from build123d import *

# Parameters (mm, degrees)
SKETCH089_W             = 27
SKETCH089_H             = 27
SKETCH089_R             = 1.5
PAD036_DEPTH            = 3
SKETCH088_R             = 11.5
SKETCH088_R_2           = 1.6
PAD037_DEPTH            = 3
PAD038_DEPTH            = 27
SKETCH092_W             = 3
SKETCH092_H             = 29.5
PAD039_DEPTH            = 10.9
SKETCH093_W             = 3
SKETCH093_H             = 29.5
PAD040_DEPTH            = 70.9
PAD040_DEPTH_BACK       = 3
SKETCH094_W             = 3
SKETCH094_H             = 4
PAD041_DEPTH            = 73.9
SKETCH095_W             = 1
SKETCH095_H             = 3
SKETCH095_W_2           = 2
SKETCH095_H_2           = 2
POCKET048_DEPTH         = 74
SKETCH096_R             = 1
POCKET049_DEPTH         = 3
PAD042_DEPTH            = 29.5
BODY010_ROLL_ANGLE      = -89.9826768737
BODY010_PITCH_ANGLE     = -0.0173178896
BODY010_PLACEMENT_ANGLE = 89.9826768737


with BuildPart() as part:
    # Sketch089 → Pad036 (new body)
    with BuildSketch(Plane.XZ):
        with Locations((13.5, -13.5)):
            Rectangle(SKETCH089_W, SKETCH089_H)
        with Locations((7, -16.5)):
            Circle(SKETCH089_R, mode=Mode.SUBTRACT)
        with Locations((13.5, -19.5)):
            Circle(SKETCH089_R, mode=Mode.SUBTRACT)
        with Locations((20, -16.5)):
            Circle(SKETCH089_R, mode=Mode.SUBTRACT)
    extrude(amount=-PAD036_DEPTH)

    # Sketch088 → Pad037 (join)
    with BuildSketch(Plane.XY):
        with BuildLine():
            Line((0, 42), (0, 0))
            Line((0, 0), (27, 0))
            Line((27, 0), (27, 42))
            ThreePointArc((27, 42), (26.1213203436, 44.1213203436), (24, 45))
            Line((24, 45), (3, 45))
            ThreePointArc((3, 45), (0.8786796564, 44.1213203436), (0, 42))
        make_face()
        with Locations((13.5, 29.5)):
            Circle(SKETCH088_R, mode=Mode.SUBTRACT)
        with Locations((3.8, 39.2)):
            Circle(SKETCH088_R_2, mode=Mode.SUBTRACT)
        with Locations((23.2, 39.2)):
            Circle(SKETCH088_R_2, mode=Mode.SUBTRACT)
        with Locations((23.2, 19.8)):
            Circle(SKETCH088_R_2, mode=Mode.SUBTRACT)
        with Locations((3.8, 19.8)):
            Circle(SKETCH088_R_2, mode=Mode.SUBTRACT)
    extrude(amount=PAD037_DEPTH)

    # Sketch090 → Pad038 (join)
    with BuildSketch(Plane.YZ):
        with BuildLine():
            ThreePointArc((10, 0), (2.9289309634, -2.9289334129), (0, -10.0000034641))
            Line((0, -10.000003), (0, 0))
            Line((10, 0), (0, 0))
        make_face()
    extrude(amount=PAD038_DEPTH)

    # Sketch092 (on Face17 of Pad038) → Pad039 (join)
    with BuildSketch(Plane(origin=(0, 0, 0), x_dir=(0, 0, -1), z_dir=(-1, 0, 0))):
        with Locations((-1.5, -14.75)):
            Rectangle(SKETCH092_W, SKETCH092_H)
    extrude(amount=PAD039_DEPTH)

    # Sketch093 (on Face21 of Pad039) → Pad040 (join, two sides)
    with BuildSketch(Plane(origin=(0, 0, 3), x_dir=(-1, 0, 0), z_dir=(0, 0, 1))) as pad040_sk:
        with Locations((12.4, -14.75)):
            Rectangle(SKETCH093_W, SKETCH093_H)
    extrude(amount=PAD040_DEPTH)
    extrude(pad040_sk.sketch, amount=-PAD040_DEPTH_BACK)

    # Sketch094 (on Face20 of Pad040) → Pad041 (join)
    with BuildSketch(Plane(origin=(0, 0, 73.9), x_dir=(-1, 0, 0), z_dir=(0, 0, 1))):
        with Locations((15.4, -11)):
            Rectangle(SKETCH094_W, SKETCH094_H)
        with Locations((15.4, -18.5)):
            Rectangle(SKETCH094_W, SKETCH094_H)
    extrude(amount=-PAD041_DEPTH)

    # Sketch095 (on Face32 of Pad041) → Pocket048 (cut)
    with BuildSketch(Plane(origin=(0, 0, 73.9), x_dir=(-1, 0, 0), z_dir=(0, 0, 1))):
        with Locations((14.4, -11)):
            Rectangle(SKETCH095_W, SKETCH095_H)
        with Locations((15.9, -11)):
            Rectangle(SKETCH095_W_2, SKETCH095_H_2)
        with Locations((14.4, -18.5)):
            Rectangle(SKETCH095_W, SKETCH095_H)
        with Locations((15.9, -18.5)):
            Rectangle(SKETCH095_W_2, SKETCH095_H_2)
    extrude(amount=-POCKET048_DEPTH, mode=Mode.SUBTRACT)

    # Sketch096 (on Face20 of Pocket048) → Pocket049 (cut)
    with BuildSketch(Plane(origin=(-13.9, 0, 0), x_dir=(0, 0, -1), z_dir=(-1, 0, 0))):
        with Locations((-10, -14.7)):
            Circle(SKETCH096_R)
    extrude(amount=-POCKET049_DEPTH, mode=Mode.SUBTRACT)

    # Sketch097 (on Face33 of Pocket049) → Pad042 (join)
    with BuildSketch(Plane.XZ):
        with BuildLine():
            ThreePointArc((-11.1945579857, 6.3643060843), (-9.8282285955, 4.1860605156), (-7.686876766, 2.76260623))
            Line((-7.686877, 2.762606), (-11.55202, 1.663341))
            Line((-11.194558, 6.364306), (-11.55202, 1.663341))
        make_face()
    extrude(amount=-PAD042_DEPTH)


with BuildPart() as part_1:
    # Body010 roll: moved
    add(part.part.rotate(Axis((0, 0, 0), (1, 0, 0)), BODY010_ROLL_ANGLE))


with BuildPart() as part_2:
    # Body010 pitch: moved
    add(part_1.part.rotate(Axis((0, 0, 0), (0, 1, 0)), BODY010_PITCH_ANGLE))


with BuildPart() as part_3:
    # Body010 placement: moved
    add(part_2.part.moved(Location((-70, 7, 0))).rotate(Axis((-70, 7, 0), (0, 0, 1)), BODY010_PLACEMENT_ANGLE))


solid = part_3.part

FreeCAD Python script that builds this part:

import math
import FreeCAD as App
import Part
import Sketcher

V = App.Vector
Q = App.Units.Quantity

doc = App.newDocument("Part")
params = doc.addObject("Spreadsheet::Sheet", "Params")
for row, (alias, value) in enumerate([
    ("sketch1_diameter", "3 mm"),
    ("sketch1_width", "27 mm"),
    ("pad1_length", "3 mm"),
    ("sketch2_diameter", "23 mm"),
    ("sketch2_radius", "3 mm"),
    ("sketch2_diameter2", "3.2 mm"),
    ("sketch2_width", "27 mm"),
    ("sketch2_height", "42 mm"),
    ("pad2_length", "3 mm"),
    ("sketch3_radius", "10 mm"),
    ("pad3_length", "27 mm"),
    ("sketch4_height", "3 mm"),
    ("sketch4_width", "29.5 mm"),
    ("pad4_length", "10.9 mm"),
    ("sketch5_width", "3 mm"),
    ("sketch5_height", "29.5 mm"),
    ("pad5_length", "70.9 mm"),
    ("pad5_length2", "3 mm"),
    ("sketch6_width", "3 mm"),
    ("sketch6_height", "4 mm"),
    ("pad6_length", "73.9 mm"),
    ("sketch7_width", "1 mm"),
    ("sketch7_width2", "2 mm"),
    ("sketch7_height", "3 mm"),
    ("pocket1_length", "74 mm"),
    ("sketch8_diameter", "2 mm"),
    ("pocket2_length", "3 mm"),
    ("pad7_length", "29.5 mm"),
], start=1):
    params.set(f"A{row}", alias)
    params.set(f"B{row}", "=" + value)
    params.setAlias(f"B{row}", alias)

body = doc.addObject("PartDesign::Body", "Body")

# Sketch on XZ plane
sketch1 = body.newObject("Sketcher::SketchObject", "Sketch")
sketch1.AttachmentSupport = (doc.getObject("XZ_Plane"), [""])
sketch1.MapMode = "FlatFace"
sketch1.addGeometry(Part.LineSegment(V(0, 0, 0), V(0, -27, 0)), False)
sketch1.addGeometry(Part.LineSegment(V(0, -27, 0), V(27, -27, 0)), False)
sketch1.addGeometry(Part.LineSegment(V(27, -27, 0), V(27, 0, 0)), False)
sketch1.addGeometry(Part.LineSegment(V(27, 0, 0), V(0, 0, 0)), False)
sketch1.addGeometry(Part.Circle(V(13.5, -19.5, 0), V(0, 0, 1), 1.5), False)
sketch1.addGeometry(Part.Circle(V(7, -16.5, 0), V(0, 0, 1), 1.5), False)
sketch1.addGeometry(Part.Circle(V(20, -16.5, 0), V(0, 0, 1), 1.5), False)
sketch1.addConstraint(Sketcher.Constraint("Coincident", 0, 2, 1, 1))
sketch1.addConstraint(Sketcher.Constraint("Coincident", 1, 2, 2, 1))
sketch1.addConstraint(Sketcher.Constraint("Coincident", 2, 2, 3, 1))
sketch1.addConstraint(Sketcher.Constraint("Coincident", 3, 2, 0, 1))
sketch1.addConstraint(Sketcher.Constraint("Vertical", 0))
sketch1.addConstraint(Sketcher.Constraint("Horizontal", 1))
sketch1.addConstraint(Sketcher.Constraint("Vertical", 2))
sketch1.addConstraint(Sketcher.Constraint("Horizontal", 3))
sketch1.addConstraint(Sketcher.Constraint("Coincident", 3, 2, -1, 1))
sketch1.addConstraint(Sketcher.Constraint("Equal", 4, 5))
sketch1.addConstraint(Sketcher.Constraint("Equal", 5, 6))
sketch1.addConstraint(Sketcher.Constraint("Horizontal", 5, 3, 6, 3))
sketch1.addConstraint(Sketcher.Constraint("Equal", 3, 0))
sketch1.addConstraint(Sketcher.Constraint("Diameter", 4, Q("3 mm")))
sketch1.addConstraint(Sketcher.Constraint("DistanceX", 1, 1, 1, 2, Q("27 mm")))
sketch1.addConstraint(Sketcher.Constraint("DistanceX", -1, 1, 5, 3, Q("7 mm")))
sketch1.addConstraint(Sketcher.Constraint("DistanceX", -1, 1, 6, 3, Q("20 mm")))
sketch1.addConstraint(Sketcher.Constraint("DistanceY", 4, 3, 5, 3, Q("3 mm")))
sketch1.addConstraint(Sketcher.Constraint("DistanceX", -1, 1, 4, 3, Q("13.5 mm")))
sketch1.addConstraint(Sketcher.Constraint("DistanceY", 4, 3, -1, 1, Q("19.5 mm")))
sketch1.setExpression("Constraints[13]", "Params.sketch1_diameter")
sketch1.setExpression("Constraints[14]", "Params.sketch1_width")
pad1 = body.newObject("PartDesign::Pad", "Pad")
pad1.Profile = sketch1
pad1.setExpression("Length", "Params.pad1_length")
pad1.Reversed = True

# Sketch on XY plane
sketch2 = body.newObject("Sketcher::SketchObject", "Sketch001")
sketch2.AttachmentSupport = (doc.getObject("XY_Plane"), [""])
sketch2.MapMode = "FlatFace"
sketch2.addGeometry(Part.LineSegment(V(0, 42, 0), V(0, 0, 0)), False)
sketch2.addGeometry(Part.LineSegment(V(0, 0, 0), V(27, 0, 0)), False)
sketch2.addGeometry(Part.LineSegment(V(27, 0, 0), V(27, 42, 0)), False)
sketch2.addGeometry(Part.ArcOfCircle(Part.Circle(V(24, 42, 0), V(0, 0, 1), 3), math.radians(0), math.radians(90)), False)
sketch2.addGeometry(Part.LineSegment(V(24, 45, 0), V(3, 45, 0)), False)
sketch2.addGeometry(Part.ArcOfCircle(Part.Circle(V(3, 42, 0), V(0, 0, 1), 3), math.radians(90), math.radians(180)), False)
sketch2.addGeometry(Part.Circle(V(3.8, 19.8, 0), V(0, 0, 1), 1.6), False)
sketch2.addGeometry(Part.Circle(V(23.2, 19.8, 0), V(0, 0, 1), 1.6), False)
sketch2.addGeometry(Part.Circle(V(3.8, 39.2, 0), V(0, 0, 1), 1.6), False)
sketch2.addGeometry(Part.Circle(V(13.5, 29.5, 0), V(0, 0, 1), 11.5), False)
sketch2.addGeometry(Part.Circle(V(23.2, 39.2, 0), V(0, 0, 1), 1.6), False)
sketch2.addConstraint(Sketcher.Constraint("Coincident", 0, 2, 1, 1))
sketch2.addConstraint(Sketcher.Constraint("Coincident", 1, 2, 2, 1))
sketch2.addConstraint(Sketcher.Constraint("Tangent", 2, 2, 3, 1))
sketch2.addConstraint(Sketcher.Constraint("Tangent", 3, 2, 4, 1))
sketch2.addConstraint(Sketcher.Constraint("Tangent", 4, 2, 5, 1))
sketch2.addConstraint(Sketcher.Constraint("Tangent", 5, 2, 0, 1))
sketch2.addConstraint(Sketcher.Constraint("Vertical", 0))
sketch2.addConstraint(Sketcher.Constraint("Horizontal", 1))
sketch2.addConstraint(Sketcher.Constraint("Vertical", 2))
sketch2.addConstraint(Sketcher.Constraint("Horizontal", 4))
sketch2.addConstraint(Sketcher.Constraint("Coincident", 0, 2, -1, 1))
sketch2.addConstraint(Sketcher.Constraint("Equal", 3, 5))
sketch2.addConstraint(Sketcher.Constraint("Equal", 6, 7))
sketch2.addConstraint(Sketcher.Constraint("Equal", 7, 8))
sketch2.addConstraint(Sketcher.Constraint("Equal", 8, 10))
sketch2.addConstraint(Sketcher.Constraint("Horizontal", 6, 3, 7, 3))
sketch2.addConstraint(Sketcher.Constraint("Horizontal", 8, 3, 10, 3))
sketch2.addConstraint(Sketcher.Constraint("Vertical", 6, 3, 8, 3))
sketch2.addConstraint(Sketcher.Constraint("Vertical", 7, 3, 10, 3))
sketch2.addConstraint(Sketcher.Constraint("Diameter", 9, Q("23 mm")))
sketch2.addConstraint(Sketcher.Constraint("Radius", 3, Q("3 mm")))
sketch2.addConstraint(Sketcher.Constraint("Diameter", 6, Q("3.2 mm")))
sketch2.addConstraint(Sketcher.Constraint("DistanceX", 1, 1, 1, 2, Q("27 mm")))
sketch2.addConstraint(Sketcher.Constraint("DistanceY", 0, 2, 0, 1, Q("42 mm")))
sketch2.addConstraint(Sketcher.Constraint("DistanceX", -1, 1, 6, 3, Q("3.8 mm")))
sketch2.addConstraint(Sketcher.Constraint("DistanceY", -1, 1, 6, 3, Q("19.8 mm")))
sketch2.addConstraint(Sketcher.Constraint("DistanceX", -1, 1, 7, 3, Q("23.2 mm")))
sketch2.addConstraint(Sketcher.Constraint("DistanceY", -1, 1, 8, 3, Q("39.2 mm")))
sketch2.addConstraint(Sketcher.Constraint("DistanceX", -1, 1, 9, 3, Q("13.5 mm")))
sketch2.addConstraint(Sketcher.Constraint("DistanceY", -1, 1, 9, 3, Q("29.5 mm")))
sketch2.setExpression("Constraints[19]", "Params.sketch2_diameter")
sketch2.setExpression("Constraints[20]", "Params.sketch2_radius")
sketch2.setExpression("Constraints[21]", "Params.sketch2_diameter2")
sketch2.setExpression("Constraints[22]", "Params.sketch2_width")
sketch2.setExpression("Constraints[23]", "Params.sketch2_height")
pad2 = body.newObject("PartDesign::Pad", "Pad001")
pad2.Profile = sketch2
pad2.setExpression("Length", "Params.pad2_length")

# Sketch on YZ plane
sketch3 = body.newObject("Sketcher::SketchObject", "Sketch002")
sketch3.AttachmentSupport = (doc.getObject("YZ_Plane"), [""])
sketch3.MapMode = "FlatFace"
sketch3.addGeometry(Part.ArcOfCircle(Part.Circle(V(10, -10, 0), V(0, 0, 1), 10), math.radians(90), math.radians(180)), False)
sketch3.addGeometry(Part.LineSegment(V(10, 0, 0), V(0, 0, 0)), False)
sketch3.addGeometry(Part.LineSegment(V(0, 0, 0), V(0, -10, 0)), False)
sketch3.addConstraint(Sketcher.Constraint("Tangent", 0, 1, 1, 1))
sketch3.addConstraint(Sketcher.Constraint("Coincident", 1, 2, 2, 1))
sketch3.addConstraint(Sketcher.Constraint("Tangent", 2, 2, 0, 2))
sketch3.addConstraint(Sketcher.Constraint("Horizontal", 1))
sketch3.addConstraint(Sketcher.Constraint("Vertical", 2))
sketch3.addConstraint(Sketcher.Constraint("Coincident", 1, 2, -1, 1))
sketch3.addConstraint(Sketcher.Constraint("Radius", 0, Q("10 mm")))
sketch3.setExpression("Constraints[6]", "Params.sketch3_radius")
pad3 = body.newObject("PartDesign::Pad", "Pad002")
pad3.Profile = sketch3
pad3.setExpression("Length", "Params.pad3_length")

# Sketch on YZ plane
sketch4 = body.newObject("Sketcher::SketchObject", "Sketch003")
sketch4.AttachmentSupport = (doc.getObject("YZ_Plane"), [""])
sketch4.MapMode = "FlatFace"
sketch4.addGeometry(Part.LineSegment(V(0, 3, 0), V(29.5, 3, 0)), False)
sketch4.addGeometry(Part.LineSegment(V(29.5, 3, 0), V(29.5, 0, 0)), False)
sketch4.addGeometry(Part.LineSegment(V(29.5, 0, 0), V(0, 0, 0)), False)
sketch4.addGeometry(Part.LineSegment(V(0, 0, 0), V(0, 3, 0)), False)
sketch4.addConstraint(Sketcher.Constraint("Coincident", 0, 2, 1, 1))
sketch4.addConstraint(Sketcher.Constraint("Coincident", 1, 2, 2, 1))
sketch4.addConstraint(Sketcher.Constraint("Coincident", 2, 2, 3, 1))
sketch4.addConstraint(Sketcher.Constraint("Coincident", 3, 2, 0, 1))
sketch4.addConstraint(Sketcher.Constraint("Horizontal", 0))
sketch4.addConstraint(Sketcher.Constraint("Vertical", 1))
sketch4.addConstraint(Sketcher.Constraint("Horizontal", 2))
sketch4.addConstraint(Sketcher.Constraint("Vertical", 3))
sketch4.addConstraint(Sketcher.Constraint("Coincident", 2, 2, -1, 1))
sketch4.addConstraint(Sketcher.Constraint("DistanceY", 1, 2, 1, 1, Q("3 mm")))
sketch4.addConstraint(Sketcher.Constraint("DistanceX", 0, 1, 0, 2, Q("29.5 mm")))
sketch4.setExpression("Constraints[9]", "Params.sketch4_height")
sketch4.setExpression("Constraints[10]", "Params.sketch4_width")
pad4 = body.newObject("PartDesign::Pad", "Pad003")
pad4.Profile = sketch4
pad4.setExpression("Length", "Params.pad4_length")
pad4.Reversed = True

# Sketch on XY plane
sketch5 = body.newObject("Sketcher::SketchObject", "Sketch004")
sketch5.AttachmentSupport = (doc.getObject("XY_Plane"), [""])
sketch5.MapMode = "FlatFace"
sketch5.AttachmentOffset = App.Placement(V(0, 0, 3), App.Rotation())
sketch5.addGeometry(Part.LineSegment(V(-10.9, 0, 0), V(-10.9, 29.5, 0)), False)
sketch5.addGeometry(Part.LineSegment(V(-10.9, 29.5, 0), V(-13.9, 29.5, 0)), False)
sketch5.addGeometry(Part.LineSegment(V(-13.9, 29.5, 0), V(-13.9, 0, 0)), False)
sketch5.addGeometry(Part.LineSegment(V(-13.9, 0, 0), V(-10.9, 0, 0)), False)
sketch5.addConstraint(Sketcher.Constraint("Coincident", 0, 2, 1, 1))
sketch5.addConstraint(Sketcher.Constraint("Coincident", 1, 2, 2, 1))
sketch5.addConstraint(Sketcher.Constraint("Coincident", 2, 2, 3, 1))
sketch5.addConstraint(Sketcher.Constraint("Coincident", 3, 2, 0, 1))
sketch5.addConstraint(Sketcher.Constraint("Vertical", 0))
sketch5.addConstraint(Sketcher.Constraint("Horizontal", 1))
sketch5.addConstraint(Sketcher.Constraint("Vertical", 2))
sketch5.addConstraint(Sketcher.Constraint("Horizontal", 3))
sketch5.addConstraint(Sketcher.Constraint("PointOnObject", 2, 2, -1))
sketch5.addConstraint(Sketcher.Constraint("DistanceX", 1, 2, 1, 1, Q("3 mm")))
sketch5.addConstraint(Sketcher.Constraint("DistanceY", 0, 1, 0, 2, Q("29.5 mm")))
sketch5.addConstraint(Sketcher.Constraint("DistanceX", 0, 2, -1, 1, Q("10.9 mm")))
sketch5.setExpression("Constraints[9]", "Params.sketch5_width")
sketch5.setExpression("Constraints[10]", "Params.sketch5_height")
pad5 = body.newObject("PartDesign::Pad", "Pad004")
pad5.Profile = sketch5
pad5.Type = "TwoLengths"
pad5.setExpression("Length", "Params.pad5_length")
pad5.setExpression("Length2", "Params.pad5_length2")

# Sketch on XY plane
sketch6 = body.newObject("Sketcher::SketchObject", "Sketch005")
sketch6.AttachmentSupport = (doc.getObject("XY_Plane"), [""])
sketch6.MapMode = "FlatFace"
sketch6.AttachmentOffset = App.Placement(V(0, 0, 73.9), App.Rotation())
sketch6.addGeometry(Part.LineSegment(V(-13.9, 9, 0), V(-13.9, 13, 0)), False)
sketch6.addGeometry(Part.LineSegment(V(-13.9, 13, 0), V(-16.9, 13, 0)), False)
sketch6.addGeometry(Part.LineSegment(V(-16.9, 13, 0), V(-16.9, 9, 0)), False)
sketch6.addGeometry(Part.LineSegment(V(-16.9, 9, 0), V(-13.9, 9, 0)), False)
sketch6.addGeometry(Part.LineSegment(V(-13.9, 16.5, 0), V(-13.9, 20.5, 0)), False)
sketch6.addGeometry(Part.LineSegment(V(-13.9, 20.5, 0), V(-16.9, 20.5, 0)), False)
sketch6.addGeometry(Part.LineSegment(V(-16.9, 20.5, 0), V(-16.9, 16.5, 0)), False)
sketch6.addGeometry(Part.LineSegment(V(-16.9, 16.5, 0), V(-13.9, 16.5, 0)), False)
sketch6.addConstraint(Sketcher.Constraint("Coincident", 0, 2, 1, 1))
sketch6.addConstraint(Sketcher.Constraint("Coincident", 1, 2, 2, 1))
sketch6.addConstraint(Sketcher.Constraint("Coincident", 2, 2, 3, 1))
sketch6.addConstraint(Sketcher.Constraint("Coincident", 3, 2, 0, 1))
sketch6.addConstraint(Sketcher.Constraint("Coincident", 4, 2, 5, 1))
sketch6.addConstraint(Sketcher.Constraint("Coincident", 5, 2, 6, 1))
sketch6.addConstraint(Sketcher.Constraint("Coincident", 6, 2, 7, 1))
sketch6.addConstraint(Sketcher.Constraint("Coincident", 7, 2, 4, 1))
sketch6.addConstraint(Sketcher.Constraint("Vertical", 0))
sketch6.addConstraint(Sketcher.Constraint("Horizontal", 1))
sketch6.addConstraint(Sketcher.Constraint("Vertical", 2))
sketch6.addConstraint(Sketcher.Constraint("Horizontal", 3))
sketch6.addConstraint(Sketcher.Constraint("Vertical", 4))
sketch6.addConstraint(Sketcher.Constraint("Horizontal", 5))
sketch6.addConstraint(Sketcher.Constraint("Vertical", 6))
sketch6.addConstraint(Sketcher.Constraint("Horizontal", 7))
sketch6.addConstraint(Sketcher.Constraint("Vertical", 3, 2, 4, 2))
sketch6.addConstraint(Sketcher.Constraint("Vertical", 2, 2, 5, 2))
sketch6.addConstraint(Sketcher.Constraint("Equal", 2, 4))
sketch6.addConstraint(Sketcher.Constraint("DistanceX", 1, 2, 1, 1, Q("3 mm")))
sketch6.addConstraint(Sketcher.Constraint("DistanceY", 0, 1, 0, 2, Q("4 mm")))
sketch6.addConstraint(Sketcher.Constraint("DistanceY", -1, 1, 0, 2, Q("13 mm")))
sketch6.addConstraint(Sketcher.Constraint("DistanceX", 0, 2, -1, 1, Q("13.9 mm")))
sketch6.addConstraint(Sketcher.Constraint("DistanceY", -1, 1, 4, 2, Q("20.5 mm")))
sketch6.setExpression("Constraints[19]", "Params.sketch6_width")
sketch6.setExpression("Constraints[20]", "Params.sketch6_height")
pad6 = body.newObject("PartDesign::Pad", "Pad005")
pad6.Profile = sketch6
pad6.setExpression("Length", "Params.pad6_length")
pad6.Reversed = True

# Sketch on XY plane
sketch7 = body.newObject("Sketcher::SketchObject", "Sketch006")
sketch7.AttachmentSupport = (doc.getObject("XY_Plane"), [""])
sketch7.MapMode = "FlatFace"
sketch7.AttachmentOffset = App.Placement(V(0, 0, 73.9), App.Rotation())
sketch7.addGeometry(Part.LineSegment(V(-13.9, 9.5, 0), V(-13.9, 12.5, 0)), False)
sketch7.addGeometry(Part.LineSegment(V(-13.9, 12.5, 0), V(-14.9, 12.5, 0)), False)
sketch7.addGeometry(Part.LineSegment(V(-14.9, 12.5, 0), V(-14.9, 12, 0)), False)
sketch7.addGeometry(Part.LineSegment(V(-14.9, 12, 0), V(-16.9, 12, 0)), False)
sketch7.addGeometry(Part.LineSegment(V(-16.9, 12, 0), V(-16.9, 10, 0)), False)
sketch7.addGeometry(Part.LineSegment(V(-16.9, 10, 0), V(-14.9, 10, 0)), False)
sketch7.addGeometry(Part.LineSegment(V(-14.9, 10, 0), V(-14.9, 9.5, 0)), False)
sketch7.addGeometry(Part.LineSegment(V(-14.9, 9.5, 0), V(-13.9, 9.5, 0)), False)
sketch7.addGeometry(Part.LineSegment(V(-13.9, 17, 0), V(-13.9, 20, 0)), False)
sketch7.addGeometry(Part.LineSegment(V(-13.9, 20, 0), V(-14.9, 20, 0)), False)
sketch7.addGeometry(Part.LineSegment(V(-14.9, 20, 0), V(-14.9, 19.5, 0)), False)
sketch7.addGeometry(Part.LineSegment(V(-14.9, 19.5, 0), V(-16.9, 19.5, 0)), False)
sketch7.addGeometry(Part.LineSegment(V(-16.9, 19.5, 0), V(-16.9, 17.5, 0)), False)
sketch7.addGeometry(Part.LineSegment(V(-16.9, 17.5, 0), V(-14.9, 17.5, 0)), False)
sketch7.addGeometry(Part.LineSegment(V(-14.9, 17.5, 0), V(-14.9, 17, 0)), False)
sketch7.addGeometry(Part.LineSegment(V(-14.9, 17, 0), V(-13.9, 17, 0)), False)
sketch7.addConstraint(Sketcher.Constraint("Coincident", 0, 2, 1, 1))
sketch7.addConstraint(Sketcher.Constraint("Coincident", 1, 2, 2, 1))
sketch7.addConstraint(Sketcher.Constraint("Coincident", 2, 2, 3, 1))
sketch7.addConstraint(Sketcher.Constraint("Coincident", 3, 2, 4, 1))
sketch7.addConstraint(Sketcher.Constraint("Coincident", 4, 2, 5, 1))
sketch7.addConstraint(Sketcher.Constraint("Coincident", 5, 2, 6, 1))
sketch7.addConstraint(Sketcher.Constraint("Coincident", 6, 2, 7, 1))
sketch7.addConstraint(Sketcher.Constraint("Coincident", 7, 2, 0, 1))
sketch7.addConstraint(Sketcher.Constraint("Coincident", 8, 2, 9, 1))
sketch7.addConstraint(Sketcher.Constraint("Coincident", 9, 2, 10, 1))
sketch7.addConstraint(Sketcher.Constraint("Coincident", 10, 2, 11, 1))
sketch7.addConstraint(Sketcher.Constraint("Coincident", 11, 2, 12, 1))
sketch7.addConstraint(Sketcher.Constraint("Coincident", 12, 2, 13, 1))
sketch7.addConstraint(Sketcher.Constraint("Coincident", 13, 2, 14, 1))
sketch7.addConstraint(Sketcher.Constraint("Coincident", 14, 2, 15, 1))
sketch7.addConstraint(Sketcher.Constraint("Coincident", 15, 2, 8, 1))
sketch7.addConstraint(Sketcher.Constraint("Vertical", 0))
sketch7.addConstraint(Sketcher.Constraint("Horizontal", 1))
sketch7.addConstraint(Sketcher.Constraint("Vertical", 2))
sketch7.addConstraint(Sketcher.Constraint("Horizontal", 3))
sketch7.addConstraint(Sketcher.Constraint("Vertical", 4))
sketch7.addConstraint(Sketcher.Constraint("Horizontal", 5))
sketch7.addConstraint(Sketcher.Constraint("Vertical", 6))
sketch7.addConstraint(Sketcher.Constraint("Horizontal", 7))
sketch7.addConstraint(Sketcher.Constraint("Vertical", 8))
sketch7.addConstraint(Sketcher.Constraint("Horizontal", 9))
sketch7.addConstraint(Sketcher.Constraint("Vertical", 10))
sketch7.addConstraint(Sketcher.Constraint("Horizontal", 11))
sketch7.addConstraint(Sketcher.Constraint("Vertical", 12))
sketch7.addConstraint(Sketcher.Constraint("Horizontal", 13))
sketch7.addConstraint(Sketcher.Constraint("Vertical", 14))
sketch7.addConstraint(Sketcher.Constraint("Horizontal", 15))
sketch7.addConstraint(Sketcher.Constraint("Vertical", 2, 2, 5, 2))
sketch7.addConstraint(Sketcher.Constraint("Vertical", 7, 2, 8, 2))
sketch7.addConstraint(Sketcher.Constraint("Vertical", 6, 2, 9, 2))
sketch7.addConstraint(Sketcher.Constraint("Vertical", 4, 2, 11, 2))
sketch7.addConstraint(Sketcher.Constraint("Vertical", 10, 2, 13, 2))
sketch7.addConstraint(Sketcher.Constraint("Equal", 13, 4))
sketch7.addConstraint(Sketcher.Constraint("Equal", 2, 6))
sketch7.addConstraint(Sketcher.Constraint("Equal", 0, 8))
sketch7.addConstraint(Sketcher.Constraint("Equal", 6, 10))
sketch7.addConstraint(Sketcher.Constraint("Equal", 4, 12))
sketch7.addConstraint(Sketcher.Constraint("DistanceX", 1, 2, 1, 1, Q("1 mm")))
sketch7.addConstraint(Sketcher.Constraint("DistanceX", 3, 2, 3, 1, Q("2 mm")))
sketch7.addConstraint(Sketcher.Constraint("DistanceY", 0, 1, 0, 2, Q("3 mm")))
sketch7.addConstraint(Sketcher.Constraint("DistanceY", -1, 1, 2, 2, Q("12 mm")))
sketch7.addConstraint(Sketcher.Constraint("DistanceY", -1, 1, 8, 2, Q("20 mm")))
sketch7.addConstraint(Sketcher.Constraint("DistanceX", 0, 2, -1, 1, Q("13.9 mm")))
sketch7.setExpression("Constraints[42]", "Params.sketch7_width")
sketch7.setExpression("Constraints[43]", "Params.sketch7_width2")
sketch7.setExpression("Constraints[44]", "Params.sketch7_height")
pocket1 = body.newObject("PartDesign::Pocket", "Pocket")
pocket1.Profile = sketch7
pocket1.setExpression("Length", "Params.pocket1_length")

# Sketch on YZ plane
sketch8 = body.newObject("Sketcher::SketchObject", "Sketch007")
sketch8.AttachmentSupport = (doc.getObject("YZ_Plane"), [""])
sketch8.MapMode = "FlatFace"
sketch8.AttachmentOffset = App.Placement(V(0, 0, -13.9), App.Rotation())
sketch8.addGeometry(Part.Circle(V(14.7, 10, 0), V(0, 0, 1), 1), False)
sketch8.addConstraint(Sketcher.Constraint("Diameter", 0, Q("2 mm")))
sketch8.addConstraint(Sketcher.Constraint("DistanceY", -1, 1, 0, 3, Q("10 mm")))
sketch8.addConstraint(Sketcher.Constraint("DistanceX", -1, 1, 0, 3, Q("14.7 mm")))
sketch8.setExpression("Constraints[0]", "Params.sketch8_diameter")
pocket2 = body.newObject("PartDesign::Pocket", "Pocket001")
pocket2.Profile = sketch8
pocket2.setExpression("Length", "Params.pocket2_length")
pocket2.Reversed = True

# Sketch on XZ plane
sketch9 = body.newObject("Sketcher::SketchObject", "Sketch008")
sketch9.AttachmentSupport = (doc.getObject("XZ_Plane"), [""])
sketch9.MapMode = "FlatFace"
sketch9.addGeometry(Part.ArcOfCircle(Part.Circle(V(-5.5, 8.4, 0), V(0, 0, 1), 6.1), math.radians(-160), math.radians(-111)), False)
sketch9.addGeometry(Part.LineSegment(V(-11.2, 6.4, 0), V(-11.6, 1.7, 0)), False)
sketch9.addGeometry(Part.LineSegment(V(-11.6, 1.7, 0), V(-7.7, 2.8, 0)), False)
sketch9.addConstraint(Sketcher.Constraint("Coincident", 0, 1, 1, 1))
sketch9.addConstraint(Sketcher.Constraint("Coincident", 1, 2, 2, 1))
sketch9.addConstraint(Sketcher.Constraint("Coincident", 2, 2, 0, 2))
sketch9.addConstraint(Sketcher.Constraint("DistanceX", 0, 3, -1, 1, Q("5.45 mm")))
sketch9.addConstraint(Sketcher.Constraint("DistanceY", -1, 1, 0, 3, Q("8.45 mm")))
sketch9.addConstraint(Sketcher.Constraint("Radius", 0, Q("6.11147 mm")))
sketch9.addConstraint(Sketcher.Constraint("DistanceY", 2, 2, 0, 1, Q("3.6017 mm")))
sketch9.addConstraint(Sketcher.Constraint("Distance", 2, Q("4.018422 mm")))
sketch9.addConstraint(Sketcher.Constraint("DistanceX", 1, 2, -1, 1, Q("11.55202 mm")))
sketch9.addConstraint(Sketcher.Constraint("DistanceY", -1, 1, 1, 2, Q("1.663341 mm")))
pad7 = body.newObject("PartDesign::Pad", "Pad006")
pad7.Profile = sketch9
pad7.setExpression("Length", "Params.pad7_length")
pad7.Reversed = True
body2 = doc.addObject("PartDesign::Body", "Body001")
doc.recompute()

body.Placement = App.Placement(V(0, 0, 0), App.Rotation(V(1, 0, 0), 270.017323))
boolean = body2.newObject("PartDesign::Boolean", "Boolean")
boolean.Type = "Fuse"
boolean.addObjects([body])
body3 = doc.addObject("PartDesign::Body", "Body002")
doc.recompute()

body2.Placement = App.Placement(V(0, 0, 0), App.Rotation(V(0, 1, 0), 359.982682))
boolean2 = body3.newObject("PartDesign::Boolean", "Boolean001")
boolean2.Type = "Fuse"
boolean2.addObjects([body2])
body4 = doc.addObject("PartDesign::Body", "Body003")
doc.recompute()

body3.Placement = App.Placement(V(-70, 7, 0), App.Rotation(V(0, 0, 1), 89.982677))
boolean3 = body4.newObject("PartDesign::Boolean", "Boolean002")
boolean3.Type = "Fuse"
boolean3.addObjects([body3])

doc.recompute()
